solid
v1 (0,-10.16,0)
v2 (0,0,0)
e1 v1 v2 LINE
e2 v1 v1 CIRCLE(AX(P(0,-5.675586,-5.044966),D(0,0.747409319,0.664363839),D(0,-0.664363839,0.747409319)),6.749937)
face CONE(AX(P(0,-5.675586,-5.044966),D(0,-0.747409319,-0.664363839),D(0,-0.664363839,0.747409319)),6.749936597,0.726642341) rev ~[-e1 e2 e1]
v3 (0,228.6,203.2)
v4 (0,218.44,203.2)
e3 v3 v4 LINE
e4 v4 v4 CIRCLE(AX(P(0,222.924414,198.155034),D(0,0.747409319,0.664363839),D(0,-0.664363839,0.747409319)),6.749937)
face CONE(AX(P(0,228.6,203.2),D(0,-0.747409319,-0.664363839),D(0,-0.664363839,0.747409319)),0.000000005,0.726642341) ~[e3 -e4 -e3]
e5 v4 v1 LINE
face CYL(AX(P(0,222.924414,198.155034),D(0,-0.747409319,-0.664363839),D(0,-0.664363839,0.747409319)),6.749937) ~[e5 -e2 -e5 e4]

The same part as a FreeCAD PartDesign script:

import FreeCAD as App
import Part
import Sketcher
Q = App.Units.Quantity

doc = App.newDocument("Part")
body = doc.addObject("PartDesign::Body", "Body")

sketch1 = body.newObject("Sketcher::SketchObject", "Sketch")
sketch1.AttachmentSupport = (doc.getObject("YZ_Plane"), [""])
sketch1.MapMode = "FlatFace"
sketch1.addGeometry(Part.LineSegment(App.Vector(-10, 0, 0), App.Vector(0, 0, 0)), False)
sketch1.addGeometry(Part.LineSegment(App.Vector(0, 0, 0), App.Vector(229, 203, 0)), False)
sketch1.addGeometry(Part.LineSegment(App.Vector(229, 203, 0), App.Vector(218, 203, 0)), False)
sketch1.addGeometry(Part.LineSegment(App.Vector(218, 203, 0), App.Vector(-10, 0, 0)), False)
sketch1.addGeometry(Part.LineSegment(App.Vector(-6, -5, 0), App.Vector(229, 203, 0)), True)
sketch1.addConstraint(Sketcher.Constraint("Coincident", 0, 2, 1, 1))
sketch1.addConstraint(Sketcher.Constraint("Coincident", 1, 2, 2, 1))
sketch1.addConstraint(Sketcher.Constraint("Coincident", 2, 2, 3, 1))
sketch1.addConstraint(Sketcher.Constraint("Coincident", 3, 2, 0, 1))
sketch1.addConstraint(Sketcher.Constraint("Horizontal", 0))
sketch1.addConstraint(Sketcher.Constraint("Horizontal", 2))
sketch1.addConstraint(Sketcher.Constraint("Coincident", 0, 2, -1, 1))
sketch1.addConstraint(Sketcher.Constraint("Coincident", 4, 2, 1, 2))
sketch1.addConstraint(Sketcher.Constraint("Parallel", 1, 3))
sketch1.addConstraint(Sketcher.Constraint("Parallel", 3, 4))
sketch1.addConstraint(Sketcher.Constraint("DistanceX", 0, 1, 0, 2, Q("0.4 in")))
sketch1.addConstraint(Sketcher.Constraint("DistanceX", -1, 1, 1, 2, Q("9 in")))
sketch1.addConstraint(Sketcher.Constraint("DistanceY", -1, 1, 1, 2, Q("8 in")))
sketch1.addConstraint(Sketcher.Constraint("Distance", 4, 313.450181))
revolution = body.newObject("PartDesign::Revolution", "Revolution")
revolution.Profile = sketch1
revolution.ReferenceAxis = (sketch1, ["Axis0"])
revolution.Angle = 360

doc.recompute()
